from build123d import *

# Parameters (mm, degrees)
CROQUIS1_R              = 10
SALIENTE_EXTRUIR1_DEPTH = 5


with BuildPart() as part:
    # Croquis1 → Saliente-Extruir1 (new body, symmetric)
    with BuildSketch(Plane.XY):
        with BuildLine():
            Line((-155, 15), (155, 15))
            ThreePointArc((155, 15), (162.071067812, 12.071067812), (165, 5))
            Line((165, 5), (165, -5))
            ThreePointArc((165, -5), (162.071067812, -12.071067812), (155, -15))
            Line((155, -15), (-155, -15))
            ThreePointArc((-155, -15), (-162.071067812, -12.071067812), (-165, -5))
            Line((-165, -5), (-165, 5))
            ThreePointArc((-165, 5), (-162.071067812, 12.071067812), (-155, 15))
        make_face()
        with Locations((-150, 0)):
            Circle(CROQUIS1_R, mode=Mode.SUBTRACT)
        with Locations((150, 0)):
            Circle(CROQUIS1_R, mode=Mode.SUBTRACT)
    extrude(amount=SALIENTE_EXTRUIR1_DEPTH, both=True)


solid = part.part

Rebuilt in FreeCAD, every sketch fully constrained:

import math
import FreeCAD as App
import Part
import Sketcher
Q = App.Units.Quantity

doc = App.newDocument("Part")
body = doc.addObject("PartDesign::Body", "Body")

# Sketch on XY plane
sketch1 = body.newObject("Sketcher::SketchObject", "Sketch")
sketch1.AttachmentSupport = (doc.getObject("XY_Plane"), [""])
sketch1.MapMode = "FlatFace"
sketch1.addGeometry(Part.LineSegment(App.Vector(155, 15, 0), App.Vector(-155, 15, 0)), False)
sketch1.addGeometry(Part.ArcOfCircle(Part.Circle(App.Vector(-155, 5, 0), App.Vector(0, 0, 1), 10), math.radians(90), math.radians(180)), False)
sketch1.addGeometry(Part.LineSegment(App.Vector(-165, 5, 0), App.Vector(-165, -5, 0)), False)
sketch1.addGeometry(Part.ArcOfCircle(Part.Circle(App.Vector(-155, -5, 0), App.Vector(0, 0, 1), 10), math.radians(180), math.radians(270)), False)
sketch1.addGeometry(Part.LineSegment(App.Vector(-155, -15, 0), App.Vector(155, -15, 0)), False)
sketch1.addGeometry(Part.ArcOfCircle(Part.Circle(App.Vector(155, -5, 0), App.Vector(0, 0, 1), 10), math.radians(-90), math.radians(0)), False)
sketch1.addGeometry(Part.LineSegment(App.Vector(165, -5, 0), App.Vector(165, 5, 0)), False)
sketch1.addGeometry(Part.ArcOfCircle(Part.Circle(App.Vector(155, 5, 0), App.Vector(0, 0, 1), 10), math.radians(0), math.radians(90)), False)
sketch1.addGeometry(Part.Circle(App.Vector(150, 0, 0), App.Vector(0, 0, 1), 10), False)
sketch1.addGeometry(Part.Circle(App.Vector(-150, 0, 0), App.Vector(0, 0, 1), 10), False)
sketch1.addConstraint(Sketcher.Constraint("Tangent", 0, 2, 1, 1))
sketch1.addConstraint(Sketcher.Constraint("Tangent", 1, 2, 2, 1))
sketch1.addConstraint(Sketcher.Constraint("Tangent", 2, 2, 3, 1))
sketch1.addConstraint(Sketcher.Constraint("Tangent", 3, 2, 4, 1))
sketch1.addConstraint(Sketcher.Constraint("Tangent", 4, 2, 5, 1))
sketch1.addConstraint(Sketcher.Constraint("Tangent", 5, 2, 6, 1))
sketch1.addConstraint(Sketcher.Constraint("Tangent", 6, 2, 7, 1))
sketch1.addConstraint(Sketcher.Constraint("Tangent", 7, 2, 0, 1))
sketch1.addConstraint(Sketcher.Constraint("Horizontal", 0))
sketch1.addConstraint(Sketcher.Constraint("Vertical", 2))
sketch1.addConstraint(Sketcher.Constraint("Horizontal", 4))
sketch1.addConstraint(Sketcher.Constraint("Vertical", 6))
sketch1.addConstraint(Sketcher.Constraint("Equal", 1, 3))
sketch1.addConstraint(Sketcher.Constraint("Equal", 3, 5))
sketch1.addConstraint(Sketcher.Constraint("Equal", 5, 7))
sketch1.addConstraint(Sketcher.Constraint("Equal", 7, 8))
sketch1.addConstraint(Sketcher.Constraint("Equal", 8, 9))
sketch1.addConstraint(Sketcher.Constraint("Symmetric", 1, 3, 5, 3, -1, 1))
sketch1.addConstraint(Sketcher.Constraint("Symmetric", 8, 3, 9, 3, -1, 1))
sketch1.addConstraint(Sketcher.Constraint("PointOnObject", 8, 3, -1))
sketch1.addConstraint(Sketcher.Constraint("Diameter", 8, Q("20 mm")))
sketch1.addConstraint(Sketcher.Constraint("DistanceX", 0, 2, 0, 1, Q("310 mm")))
sketch1.addConstraint(Sketcher.Constraint("DistanceY", 2, 2, 2, 1, Q("10 mm")))
sketch1.addConstraint(Sketcher.Constraint("DistanceX", -1, 1, 8, 3, Q("150 mm")))
pad1 = body.newObject("PartDesign::Pad", "Pad")
pad1.Profile = sketch1
pad1.Length = 10
pad1.Midplane = True

doc.recompute()
